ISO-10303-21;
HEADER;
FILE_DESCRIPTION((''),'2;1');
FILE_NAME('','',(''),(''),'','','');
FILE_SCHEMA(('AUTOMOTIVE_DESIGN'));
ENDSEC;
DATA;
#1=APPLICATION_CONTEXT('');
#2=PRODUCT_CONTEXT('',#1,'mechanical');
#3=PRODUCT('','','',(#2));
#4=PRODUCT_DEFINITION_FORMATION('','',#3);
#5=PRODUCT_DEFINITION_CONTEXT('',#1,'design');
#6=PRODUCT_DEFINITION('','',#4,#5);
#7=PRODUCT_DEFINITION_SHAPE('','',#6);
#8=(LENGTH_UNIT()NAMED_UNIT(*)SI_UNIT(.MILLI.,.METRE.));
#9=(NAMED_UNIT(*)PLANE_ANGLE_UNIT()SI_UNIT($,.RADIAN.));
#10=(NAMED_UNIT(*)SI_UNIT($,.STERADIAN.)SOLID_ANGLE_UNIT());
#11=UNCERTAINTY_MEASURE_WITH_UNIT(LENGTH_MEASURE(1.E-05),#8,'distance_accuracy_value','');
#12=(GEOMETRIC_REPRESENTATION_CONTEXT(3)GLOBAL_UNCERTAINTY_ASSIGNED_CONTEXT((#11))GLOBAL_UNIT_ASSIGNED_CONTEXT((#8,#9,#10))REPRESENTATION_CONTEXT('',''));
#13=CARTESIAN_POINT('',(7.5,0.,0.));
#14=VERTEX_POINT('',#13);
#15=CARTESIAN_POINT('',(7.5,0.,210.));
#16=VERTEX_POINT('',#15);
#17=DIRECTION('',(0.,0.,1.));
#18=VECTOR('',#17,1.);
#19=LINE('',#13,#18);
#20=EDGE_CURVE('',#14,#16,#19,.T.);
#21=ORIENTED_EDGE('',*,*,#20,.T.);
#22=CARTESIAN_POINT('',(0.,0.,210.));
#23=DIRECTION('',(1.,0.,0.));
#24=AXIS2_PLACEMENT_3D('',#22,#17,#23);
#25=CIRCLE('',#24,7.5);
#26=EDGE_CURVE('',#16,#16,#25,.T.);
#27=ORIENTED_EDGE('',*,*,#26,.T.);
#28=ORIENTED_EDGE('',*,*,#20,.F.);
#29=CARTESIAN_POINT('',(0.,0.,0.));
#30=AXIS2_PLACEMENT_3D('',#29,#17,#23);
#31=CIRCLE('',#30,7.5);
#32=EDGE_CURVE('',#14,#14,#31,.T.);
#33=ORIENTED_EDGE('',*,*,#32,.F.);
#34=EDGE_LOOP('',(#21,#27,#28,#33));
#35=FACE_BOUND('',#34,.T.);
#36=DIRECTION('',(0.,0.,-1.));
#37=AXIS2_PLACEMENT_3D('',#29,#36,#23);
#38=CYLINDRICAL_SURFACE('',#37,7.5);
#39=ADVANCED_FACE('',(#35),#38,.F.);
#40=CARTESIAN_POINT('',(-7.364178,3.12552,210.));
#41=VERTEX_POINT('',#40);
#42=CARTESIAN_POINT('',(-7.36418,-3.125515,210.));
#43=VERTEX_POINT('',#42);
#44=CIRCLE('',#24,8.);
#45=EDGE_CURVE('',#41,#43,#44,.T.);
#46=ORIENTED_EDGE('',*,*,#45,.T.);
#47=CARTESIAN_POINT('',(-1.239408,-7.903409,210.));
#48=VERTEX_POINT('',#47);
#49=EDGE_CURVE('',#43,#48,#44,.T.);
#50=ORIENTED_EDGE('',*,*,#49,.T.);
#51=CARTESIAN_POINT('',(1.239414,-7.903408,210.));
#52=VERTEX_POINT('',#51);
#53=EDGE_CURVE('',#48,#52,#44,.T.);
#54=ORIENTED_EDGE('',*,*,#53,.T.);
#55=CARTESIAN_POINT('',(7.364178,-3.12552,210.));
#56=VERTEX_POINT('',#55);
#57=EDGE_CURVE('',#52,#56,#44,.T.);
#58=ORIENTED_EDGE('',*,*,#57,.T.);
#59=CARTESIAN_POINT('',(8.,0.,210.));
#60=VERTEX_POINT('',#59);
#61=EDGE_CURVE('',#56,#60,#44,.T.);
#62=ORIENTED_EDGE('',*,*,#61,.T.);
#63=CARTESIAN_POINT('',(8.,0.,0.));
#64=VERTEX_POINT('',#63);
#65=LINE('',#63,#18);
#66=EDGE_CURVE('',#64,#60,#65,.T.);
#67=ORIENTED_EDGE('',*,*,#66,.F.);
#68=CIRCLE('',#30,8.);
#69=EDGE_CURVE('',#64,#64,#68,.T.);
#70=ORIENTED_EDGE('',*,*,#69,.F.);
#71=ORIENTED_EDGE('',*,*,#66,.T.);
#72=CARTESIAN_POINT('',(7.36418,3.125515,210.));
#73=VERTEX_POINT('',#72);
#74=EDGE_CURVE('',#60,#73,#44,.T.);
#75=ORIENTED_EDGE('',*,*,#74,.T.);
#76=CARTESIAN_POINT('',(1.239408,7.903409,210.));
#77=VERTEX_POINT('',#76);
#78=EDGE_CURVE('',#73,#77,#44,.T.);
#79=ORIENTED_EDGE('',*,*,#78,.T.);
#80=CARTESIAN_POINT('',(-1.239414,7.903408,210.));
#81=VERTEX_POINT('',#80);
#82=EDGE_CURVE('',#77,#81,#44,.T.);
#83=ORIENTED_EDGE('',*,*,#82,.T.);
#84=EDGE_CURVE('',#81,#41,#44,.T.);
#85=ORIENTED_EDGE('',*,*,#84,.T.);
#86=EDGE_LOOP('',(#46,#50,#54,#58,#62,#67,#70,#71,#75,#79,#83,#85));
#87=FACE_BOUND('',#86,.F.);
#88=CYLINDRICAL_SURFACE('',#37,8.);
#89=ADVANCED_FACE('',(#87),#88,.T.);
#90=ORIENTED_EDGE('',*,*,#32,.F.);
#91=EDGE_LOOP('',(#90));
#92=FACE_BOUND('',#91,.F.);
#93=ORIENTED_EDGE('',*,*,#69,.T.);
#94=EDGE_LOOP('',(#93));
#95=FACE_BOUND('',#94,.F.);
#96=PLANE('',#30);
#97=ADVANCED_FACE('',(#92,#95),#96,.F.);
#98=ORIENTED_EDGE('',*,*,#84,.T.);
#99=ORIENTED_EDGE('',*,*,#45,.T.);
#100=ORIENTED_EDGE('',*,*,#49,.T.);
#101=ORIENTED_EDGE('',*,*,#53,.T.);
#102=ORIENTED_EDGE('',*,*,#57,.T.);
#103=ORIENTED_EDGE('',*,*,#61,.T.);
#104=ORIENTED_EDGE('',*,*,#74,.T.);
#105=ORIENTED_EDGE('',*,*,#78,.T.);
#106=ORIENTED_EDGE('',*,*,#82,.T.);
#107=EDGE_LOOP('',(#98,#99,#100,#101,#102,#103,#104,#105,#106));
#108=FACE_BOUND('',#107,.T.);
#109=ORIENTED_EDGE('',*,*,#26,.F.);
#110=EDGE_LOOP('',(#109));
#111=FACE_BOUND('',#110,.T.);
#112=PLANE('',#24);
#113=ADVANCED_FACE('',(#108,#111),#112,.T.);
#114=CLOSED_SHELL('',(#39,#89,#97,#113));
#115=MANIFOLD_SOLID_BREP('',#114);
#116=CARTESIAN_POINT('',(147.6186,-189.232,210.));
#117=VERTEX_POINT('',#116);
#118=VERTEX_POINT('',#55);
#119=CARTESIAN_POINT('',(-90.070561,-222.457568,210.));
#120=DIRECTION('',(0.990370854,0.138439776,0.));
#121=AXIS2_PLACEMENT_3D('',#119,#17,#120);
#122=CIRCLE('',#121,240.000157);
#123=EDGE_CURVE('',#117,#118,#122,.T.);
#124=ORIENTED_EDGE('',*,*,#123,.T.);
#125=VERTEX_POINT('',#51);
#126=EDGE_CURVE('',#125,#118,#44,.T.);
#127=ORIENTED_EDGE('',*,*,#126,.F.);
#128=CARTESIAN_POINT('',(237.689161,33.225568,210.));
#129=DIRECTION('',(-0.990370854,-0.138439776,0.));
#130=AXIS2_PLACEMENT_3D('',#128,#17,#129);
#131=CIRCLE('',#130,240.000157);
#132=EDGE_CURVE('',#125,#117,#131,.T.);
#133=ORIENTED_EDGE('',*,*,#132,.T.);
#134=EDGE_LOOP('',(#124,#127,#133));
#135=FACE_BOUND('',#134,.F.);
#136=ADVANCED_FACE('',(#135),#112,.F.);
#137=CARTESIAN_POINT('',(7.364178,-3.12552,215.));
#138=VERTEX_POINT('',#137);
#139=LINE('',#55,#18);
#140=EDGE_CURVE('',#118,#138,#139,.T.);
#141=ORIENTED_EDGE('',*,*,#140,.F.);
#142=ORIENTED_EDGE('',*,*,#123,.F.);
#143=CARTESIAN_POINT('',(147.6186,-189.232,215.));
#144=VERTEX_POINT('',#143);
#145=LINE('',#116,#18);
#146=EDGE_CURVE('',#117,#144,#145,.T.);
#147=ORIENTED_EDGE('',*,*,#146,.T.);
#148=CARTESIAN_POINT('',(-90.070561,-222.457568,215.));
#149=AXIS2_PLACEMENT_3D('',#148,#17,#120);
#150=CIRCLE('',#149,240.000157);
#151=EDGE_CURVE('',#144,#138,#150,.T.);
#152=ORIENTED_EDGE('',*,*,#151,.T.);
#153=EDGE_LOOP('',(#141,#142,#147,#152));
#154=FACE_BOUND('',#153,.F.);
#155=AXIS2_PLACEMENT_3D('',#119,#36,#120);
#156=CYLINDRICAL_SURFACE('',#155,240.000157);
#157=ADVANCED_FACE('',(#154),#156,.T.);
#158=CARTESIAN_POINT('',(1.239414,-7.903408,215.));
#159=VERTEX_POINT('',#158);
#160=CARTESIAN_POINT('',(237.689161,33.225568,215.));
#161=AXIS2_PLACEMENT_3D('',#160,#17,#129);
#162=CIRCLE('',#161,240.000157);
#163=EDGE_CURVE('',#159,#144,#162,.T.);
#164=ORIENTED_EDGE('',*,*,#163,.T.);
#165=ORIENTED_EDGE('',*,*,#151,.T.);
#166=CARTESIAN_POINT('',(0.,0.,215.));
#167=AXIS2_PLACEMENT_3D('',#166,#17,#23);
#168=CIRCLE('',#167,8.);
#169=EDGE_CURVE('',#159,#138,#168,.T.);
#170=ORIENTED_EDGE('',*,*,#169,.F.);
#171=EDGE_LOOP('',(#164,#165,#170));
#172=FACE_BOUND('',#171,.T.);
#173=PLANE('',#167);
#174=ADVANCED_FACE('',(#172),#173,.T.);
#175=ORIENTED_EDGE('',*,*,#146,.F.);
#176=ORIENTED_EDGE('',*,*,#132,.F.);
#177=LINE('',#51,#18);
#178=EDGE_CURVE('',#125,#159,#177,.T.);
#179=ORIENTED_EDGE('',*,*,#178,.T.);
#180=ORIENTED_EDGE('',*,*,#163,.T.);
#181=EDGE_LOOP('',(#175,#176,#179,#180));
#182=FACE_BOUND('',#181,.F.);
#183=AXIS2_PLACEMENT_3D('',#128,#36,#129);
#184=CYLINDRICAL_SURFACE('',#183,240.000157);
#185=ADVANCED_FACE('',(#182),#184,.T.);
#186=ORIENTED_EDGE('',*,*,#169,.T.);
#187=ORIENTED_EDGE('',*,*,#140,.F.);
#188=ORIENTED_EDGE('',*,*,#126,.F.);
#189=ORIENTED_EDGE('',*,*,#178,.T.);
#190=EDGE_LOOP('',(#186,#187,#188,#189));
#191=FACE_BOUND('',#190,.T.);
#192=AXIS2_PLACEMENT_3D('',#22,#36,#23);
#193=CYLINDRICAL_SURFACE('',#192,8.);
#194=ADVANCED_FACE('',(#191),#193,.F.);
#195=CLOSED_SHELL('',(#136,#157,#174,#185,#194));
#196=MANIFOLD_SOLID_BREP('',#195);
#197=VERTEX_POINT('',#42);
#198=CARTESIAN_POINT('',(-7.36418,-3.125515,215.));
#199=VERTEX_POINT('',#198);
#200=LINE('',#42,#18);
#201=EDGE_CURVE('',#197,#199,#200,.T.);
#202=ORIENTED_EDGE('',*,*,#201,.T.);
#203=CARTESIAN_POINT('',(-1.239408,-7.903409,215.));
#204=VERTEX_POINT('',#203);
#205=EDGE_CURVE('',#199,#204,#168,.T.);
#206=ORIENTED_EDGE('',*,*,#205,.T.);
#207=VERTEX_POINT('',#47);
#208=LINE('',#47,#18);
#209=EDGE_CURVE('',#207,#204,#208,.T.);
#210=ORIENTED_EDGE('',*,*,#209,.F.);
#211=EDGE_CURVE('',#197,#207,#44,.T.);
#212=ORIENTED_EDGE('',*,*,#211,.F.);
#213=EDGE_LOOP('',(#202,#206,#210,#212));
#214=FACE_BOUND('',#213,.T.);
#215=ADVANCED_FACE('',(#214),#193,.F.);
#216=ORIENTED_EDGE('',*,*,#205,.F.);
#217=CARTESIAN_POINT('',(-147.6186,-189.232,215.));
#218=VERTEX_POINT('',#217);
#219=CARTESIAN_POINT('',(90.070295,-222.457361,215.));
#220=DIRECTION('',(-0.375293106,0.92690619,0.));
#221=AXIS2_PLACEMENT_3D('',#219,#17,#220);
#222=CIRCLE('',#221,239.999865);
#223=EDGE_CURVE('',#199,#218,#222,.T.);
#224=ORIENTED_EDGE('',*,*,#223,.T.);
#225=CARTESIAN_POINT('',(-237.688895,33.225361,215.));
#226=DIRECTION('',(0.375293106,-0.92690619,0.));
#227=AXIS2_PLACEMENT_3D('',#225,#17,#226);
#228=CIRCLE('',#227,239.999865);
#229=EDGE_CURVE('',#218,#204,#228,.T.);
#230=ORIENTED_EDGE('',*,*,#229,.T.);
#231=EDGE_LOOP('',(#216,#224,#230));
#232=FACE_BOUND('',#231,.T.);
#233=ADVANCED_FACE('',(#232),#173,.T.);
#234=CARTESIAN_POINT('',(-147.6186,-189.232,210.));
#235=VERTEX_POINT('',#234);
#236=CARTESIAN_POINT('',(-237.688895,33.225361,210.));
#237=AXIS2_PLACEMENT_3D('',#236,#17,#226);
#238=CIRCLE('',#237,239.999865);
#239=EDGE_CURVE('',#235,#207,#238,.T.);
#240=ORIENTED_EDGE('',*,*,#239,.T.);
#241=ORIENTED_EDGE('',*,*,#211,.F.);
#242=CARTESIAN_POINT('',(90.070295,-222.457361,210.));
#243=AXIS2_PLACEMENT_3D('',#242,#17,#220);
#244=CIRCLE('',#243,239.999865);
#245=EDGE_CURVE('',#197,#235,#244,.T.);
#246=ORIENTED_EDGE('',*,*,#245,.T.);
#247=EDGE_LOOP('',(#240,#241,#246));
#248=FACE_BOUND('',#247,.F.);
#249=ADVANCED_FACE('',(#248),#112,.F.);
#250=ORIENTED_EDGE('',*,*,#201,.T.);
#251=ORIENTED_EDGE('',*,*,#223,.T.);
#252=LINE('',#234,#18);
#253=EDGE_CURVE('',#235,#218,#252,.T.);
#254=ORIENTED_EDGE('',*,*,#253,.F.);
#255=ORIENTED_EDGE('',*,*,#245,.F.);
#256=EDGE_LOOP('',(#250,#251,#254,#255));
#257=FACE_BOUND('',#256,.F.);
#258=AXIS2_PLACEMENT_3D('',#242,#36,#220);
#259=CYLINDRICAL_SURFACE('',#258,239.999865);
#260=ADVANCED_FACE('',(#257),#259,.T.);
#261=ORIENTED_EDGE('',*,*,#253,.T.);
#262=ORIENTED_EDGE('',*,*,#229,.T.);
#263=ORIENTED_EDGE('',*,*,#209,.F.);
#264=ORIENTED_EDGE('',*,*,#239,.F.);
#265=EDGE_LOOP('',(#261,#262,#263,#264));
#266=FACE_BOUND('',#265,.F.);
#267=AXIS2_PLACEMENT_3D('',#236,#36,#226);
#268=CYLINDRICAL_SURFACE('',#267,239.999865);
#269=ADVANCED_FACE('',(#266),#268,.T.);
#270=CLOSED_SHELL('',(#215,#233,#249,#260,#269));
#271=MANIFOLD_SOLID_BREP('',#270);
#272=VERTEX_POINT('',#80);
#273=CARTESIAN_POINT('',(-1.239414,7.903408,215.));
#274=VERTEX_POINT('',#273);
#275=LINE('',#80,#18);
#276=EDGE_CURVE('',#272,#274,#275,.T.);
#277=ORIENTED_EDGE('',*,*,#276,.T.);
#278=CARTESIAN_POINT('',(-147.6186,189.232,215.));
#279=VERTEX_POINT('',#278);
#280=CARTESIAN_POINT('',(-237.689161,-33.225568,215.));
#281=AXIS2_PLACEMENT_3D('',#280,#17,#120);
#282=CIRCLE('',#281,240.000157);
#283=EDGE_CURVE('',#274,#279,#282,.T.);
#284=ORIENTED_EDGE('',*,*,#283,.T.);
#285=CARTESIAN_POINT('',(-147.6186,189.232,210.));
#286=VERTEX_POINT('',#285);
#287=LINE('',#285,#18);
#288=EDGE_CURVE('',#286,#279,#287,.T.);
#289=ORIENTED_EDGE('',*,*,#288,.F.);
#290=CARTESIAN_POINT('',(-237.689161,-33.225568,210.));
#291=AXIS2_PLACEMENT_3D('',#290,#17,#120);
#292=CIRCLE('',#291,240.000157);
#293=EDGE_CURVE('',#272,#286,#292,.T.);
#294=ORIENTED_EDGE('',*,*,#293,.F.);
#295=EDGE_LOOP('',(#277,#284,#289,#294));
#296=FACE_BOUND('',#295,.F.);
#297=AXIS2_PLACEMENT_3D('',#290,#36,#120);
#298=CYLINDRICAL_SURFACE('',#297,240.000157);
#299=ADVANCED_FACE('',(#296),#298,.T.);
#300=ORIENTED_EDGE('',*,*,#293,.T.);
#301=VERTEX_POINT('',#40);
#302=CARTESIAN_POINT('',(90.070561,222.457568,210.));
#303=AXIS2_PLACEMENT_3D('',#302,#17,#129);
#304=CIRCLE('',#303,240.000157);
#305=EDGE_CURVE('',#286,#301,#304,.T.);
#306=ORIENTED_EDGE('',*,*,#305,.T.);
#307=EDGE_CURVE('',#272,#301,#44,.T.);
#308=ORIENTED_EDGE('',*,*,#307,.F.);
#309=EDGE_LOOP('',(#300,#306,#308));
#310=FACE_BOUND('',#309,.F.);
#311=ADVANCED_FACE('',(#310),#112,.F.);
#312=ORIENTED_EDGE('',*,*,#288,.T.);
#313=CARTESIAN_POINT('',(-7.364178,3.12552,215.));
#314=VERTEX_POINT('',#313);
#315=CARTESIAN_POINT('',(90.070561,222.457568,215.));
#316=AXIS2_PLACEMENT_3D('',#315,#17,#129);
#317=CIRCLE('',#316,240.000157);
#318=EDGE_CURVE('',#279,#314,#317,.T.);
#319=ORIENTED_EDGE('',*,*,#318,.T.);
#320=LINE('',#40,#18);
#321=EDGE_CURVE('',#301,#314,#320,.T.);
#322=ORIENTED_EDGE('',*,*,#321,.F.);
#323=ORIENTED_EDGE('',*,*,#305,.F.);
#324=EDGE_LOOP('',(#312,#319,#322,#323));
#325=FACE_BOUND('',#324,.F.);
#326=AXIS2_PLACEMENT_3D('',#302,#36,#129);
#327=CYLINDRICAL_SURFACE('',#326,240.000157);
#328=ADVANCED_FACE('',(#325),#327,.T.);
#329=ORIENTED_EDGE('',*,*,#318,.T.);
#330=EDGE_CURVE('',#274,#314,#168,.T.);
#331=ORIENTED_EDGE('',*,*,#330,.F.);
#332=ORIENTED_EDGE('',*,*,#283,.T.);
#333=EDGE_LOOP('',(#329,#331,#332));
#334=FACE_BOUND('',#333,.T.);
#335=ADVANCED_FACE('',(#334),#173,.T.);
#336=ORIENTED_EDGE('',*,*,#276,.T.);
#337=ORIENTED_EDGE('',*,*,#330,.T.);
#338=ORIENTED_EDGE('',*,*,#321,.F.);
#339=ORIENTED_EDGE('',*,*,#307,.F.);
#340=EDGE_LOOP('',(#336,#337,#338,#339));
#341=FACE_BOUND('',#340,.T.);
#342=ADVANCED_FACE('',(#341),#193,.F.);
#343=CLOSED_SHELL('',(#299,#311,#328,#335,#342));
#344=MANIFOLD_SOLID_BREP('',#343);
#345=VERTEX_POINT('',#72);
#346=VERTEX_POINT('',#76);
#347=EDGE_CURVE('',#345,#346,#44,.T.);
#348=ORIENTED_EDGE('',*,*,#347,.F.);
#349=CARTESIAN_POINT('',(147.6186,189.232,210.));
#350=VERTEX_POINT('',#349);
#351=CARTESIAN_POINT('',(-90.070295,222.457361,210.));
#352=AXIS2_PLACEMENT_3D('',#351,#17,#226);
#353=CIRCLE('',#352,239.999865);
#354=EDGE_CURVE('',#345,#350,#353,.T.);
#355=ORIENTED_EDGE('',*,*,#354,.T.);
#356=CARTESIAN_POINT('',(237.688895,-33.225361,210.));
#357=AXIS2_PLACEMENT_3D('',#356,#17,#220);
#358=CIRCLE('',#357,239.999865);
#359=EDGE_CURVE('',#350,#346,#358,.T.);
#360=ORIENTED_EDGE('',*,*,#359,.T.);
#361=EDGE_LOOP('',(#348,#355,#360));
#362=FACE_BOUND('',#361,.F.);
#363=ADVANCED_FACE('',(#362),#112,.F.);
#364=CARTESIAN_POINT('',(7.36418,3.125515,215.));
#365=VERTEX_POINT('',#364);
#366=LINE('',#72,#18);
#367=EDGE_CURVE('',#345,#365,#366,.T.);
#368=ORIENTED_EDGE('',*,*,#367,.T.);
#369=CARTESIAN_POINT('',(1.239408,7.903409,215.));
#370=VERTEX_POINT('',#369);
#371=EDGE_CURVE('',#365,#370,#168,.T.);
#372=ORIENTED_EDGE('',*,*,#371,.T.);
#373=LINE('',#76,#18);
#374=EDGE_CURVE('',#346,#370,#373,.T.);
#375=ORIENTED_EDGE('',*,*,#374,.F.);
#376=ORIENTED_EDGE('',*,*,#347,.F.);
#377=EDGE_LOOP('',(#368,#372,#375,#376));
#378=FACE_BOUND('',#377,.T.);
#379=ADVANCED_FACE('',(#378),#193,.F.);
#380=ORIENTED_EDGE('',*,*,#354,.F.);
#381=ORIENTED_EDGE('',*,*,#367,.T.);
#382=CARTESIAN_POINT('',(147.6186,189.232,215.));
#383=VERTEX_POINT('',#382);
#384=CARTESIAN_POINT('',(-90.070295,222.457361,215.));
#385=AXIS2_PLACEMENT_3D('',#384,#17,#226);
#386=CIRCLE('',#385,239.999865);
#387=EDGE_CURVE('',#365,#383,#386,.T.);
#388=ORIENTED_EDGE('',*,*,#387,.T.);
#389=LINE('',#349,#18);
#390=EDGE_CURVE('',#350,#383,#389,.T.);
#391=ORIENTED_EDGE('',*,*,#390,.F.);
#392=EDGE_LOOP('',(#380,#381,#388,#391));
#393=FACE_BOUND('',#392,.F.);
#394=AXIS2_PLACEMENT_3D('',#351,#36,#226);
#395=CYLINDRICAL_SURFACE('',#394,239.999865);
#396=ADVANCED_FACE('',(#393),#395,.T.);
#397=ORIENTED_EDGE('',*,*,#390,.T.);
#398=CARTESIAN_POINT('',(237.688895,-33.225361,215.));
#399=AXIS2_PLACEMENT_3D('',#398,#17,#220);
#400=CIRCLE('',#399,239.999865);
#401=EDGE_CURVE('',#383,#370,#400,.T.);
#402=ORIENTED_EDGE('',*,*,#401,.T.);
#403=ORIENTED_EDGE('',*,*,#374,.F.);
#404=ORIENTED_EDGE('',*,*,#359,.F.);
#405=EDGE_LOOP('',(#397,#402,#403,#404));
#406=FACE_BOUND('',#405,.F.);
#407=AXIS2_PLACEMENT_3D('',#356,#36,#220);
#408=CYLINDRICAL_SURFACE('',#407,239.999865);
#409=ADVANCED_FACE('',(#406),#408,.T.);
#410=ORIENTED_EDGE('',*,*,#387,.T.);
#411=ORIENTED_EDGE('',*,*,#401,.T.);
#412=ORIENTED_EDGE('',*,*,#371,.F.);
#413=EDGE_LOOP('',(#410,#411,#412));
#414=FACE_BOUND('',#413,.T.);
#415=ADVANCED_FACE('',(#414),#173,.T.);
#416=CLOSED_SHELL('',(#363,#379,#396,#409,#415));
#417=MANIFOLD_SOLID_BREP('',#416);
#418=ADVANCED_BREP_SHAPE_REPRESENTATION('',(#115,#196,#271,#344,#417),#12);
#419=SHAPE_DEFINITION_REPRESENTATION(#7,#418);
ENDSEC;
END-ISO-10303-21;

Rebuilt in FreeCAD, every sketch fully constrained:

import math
import FreeCAD as App
import Part
import Sketcher

V = App.Vector

doc = App.newDocument("Part")
params = doc.addObject("Spreadsheet::Sheet", "Params")
for row, (alias, value) in enumerate([
    ("sketch1_diameter", "16 mm"),
    ("sketch1_diameter2", "15 mm"),
    ("pad1_length", "210 mm"),
    ("sketch2_radius", "240 mm"),
    ("sketch2_radius2", "8 mm"),
    ("pad2_length", "5 mm"),
], start=1):
    params.set(f"A{row}", alias)
    params.set(f"B{row}", "=" + value)
    params.setAlias(f"B{row}", alias)

body = doc.addObject("PartDesign::Body", "Body")
body.AllowCompound = True

sketch1 = doc.addObject("Sketcher::SketchObject", "Sketch")
body.addObject(sketch1)
sketch1.AttachmentSupport = (doc.XY_Plane, [""])
sketch1.MapMode = "FlatFace"
sketch1.addGeometry(Part.Circle(V(0, 0, 0), V(0, 0, 1), 8), False)
sketch1.addGeometry(Part.Circle(V(0, 0, 0), V(0, 0, 1), 8), False)
sketch1.addConstraint(Sketcher.Constraint("Coincident", 0, 3, -1, 1))
sketch1.addConstraint(Sketcher.Constraint("Coincident", 1, 3, -1, 1))
sketch1.addConstraint(Sketcher.Constraint("Diameter", 0, 16.0))
sketch1.addConstraint(Sketcher.Constraint("Diameter", 1, 15.0))
sketch1.setExpression("Constraints[2]", "Params.sketch1_diameter")
sketch1.setExpression("Constraints[3]", "Params.sketch1_diameter2")
pad1 = doc.addObject("PartDesign::Pad", "Pad")
body.addObject(pad1)
pad1.Profile = sketch1
pad1.setExpression("Length", "Params.pad1_length")

sketch2 = doc.addObject("Sketcher::SketchObject", "Sketch001")
body.addObject(sketch2)
sketch2.AttachmentSupport = (doc.XY_Plane, [""])
sketch2.MapMode = "FlatFace"
sketch2.AttachmentOffset = App.Placement(V(0, 0, 210), App.Rotation())
sketch2.addGeometry(Part.ArcOfCircle(Part.Circle(V(0, 0, 0), V(0, 0, 1), 8), math.radians(23), math.radians(81)), False)
sketch2.addGeometry(Part.ArcOfCircle(Part.Circle(V(-90, 222, 0), V(0, 0, 1), 240), math.radians(-66), math.radians(-8)), False)
sketch2.addGeometry(Part.ArcOfCircle(Part.Circle(V(238, -33, 0), V(0, 0, 1), 240), math.radians(112), math.radians(170)), False)
sketch2.addGeometry(Part.ArcOfCircle(Part.Circle(V(-90, -222, 0), V(0, 0, 1), 240), math.radians(8), math.radians(66)), False)
sketch2.addGeometry(Part.ArcOfCircle(Part.Circle(V(0, 0, 0), V(0, 0, 1), 8), math.radians(-81), math.radians(-23)), False)
sketch2.addGeometry(Part.ArcOfCircle(Part.Circle(V(238, 33, 0), V(0, 0, 1), 240), math.radians(-170), math.radians(-112)), False)
sketch2.addGeometry(Part.ArcOfCircle(Part.Circle(V(0, 0, 0), V(0, 0, 1), 8), math.radians(99), math.radians(157)), False)
sketch2.addGeometry(Part.ArcOfCircle(Part.Circle(V(-238, -33, 0), V(0, 0, 1), 240), math.radians(10), math.radians(68)), False)
sketch2.addGeometry(Part.ArcOfCircle(Part.Circle(V(90, 222, 0), V(0, 0, 1), 240), math.radians(-172), math.radians(-114)), False)
sketch2.addGeometry(Part.ArcOfCircle(Part.Circle(V(-238, 33, 0), V(0, 0, 1), 240), math.radians(-68), math.radians(-10)), False)
sketch2.addGeometry(Part.ArcOfCircle(Part.Circle(V(0, 0, 0), V(0, 0, 1), 8), math.radians(-157), math.radians(-99)), False)
sketch2.addGeometry(Part.ArcOfCircle(Part.Circle(V(90, -222, 0), V(0, 0, 1), 240), math.radians(114), math.radians(172)), False)
sketch2.addConstraint(Sketcher.Constraint("Coincident", 0, 1, 1, 1))
sketch2.addConstraint(Sketcher.Constraint("Coincident", 1, 2, 2, 1))
sketch2.addConstraint(Sketcher.Constraint("Coincident", 2, 2, 0, 2))
sketch2.addConstraint(Sketcher.Constraint("Coincident", 3, 2, 4, 2))
sketch2.addConstraint(Sketcher.Constraint("Coincident", 4, 1, 5, 1))
sketch2.addConstraint(Sketcher.Constraint("Coincident", 5, 2, 3, 1))
sketch2.addConstraint(Sketcher.Constraint("Coincident", 6, 1, 7, 1))
sketch2.addConstraint(Sketcher.Constraint("Coincident", 7, 2, 8, 1))
sketch2.addConstraint(Sketcher.Constraint("Coincident", 8, 2, 6, 2))
sketch2.addConstraint(Sketcher.Constraint("Coincident", 9, 2, 10, 2))
sketch2.addConstraint(Sketcher.Constraint("Coincident", 10, 1, 11, 1))
sketch2.addConstraint(Sketcher.Constraint("Coincident", 11, 2, 9, 1))
sketch2.addConstraint(Sketcher.Constraint("Coincident", 0, 3, -1, 1))
sketch2.addConstraint(Sketcher.Constraint("Coincident", 4, 3, -1, 1))
sketch2.addConstraint(Sketcher.Constraint("Coincident", 6, 3, -1, 1))
sketch2.addConstraint(Sketcher.Constraint("Coincident", 10, 3, -1, 1))
sketch2.addConstraint(Sketcher.Constraint("Equal", 1, 2))
sketch2.addConstraint(Sketcher.Constraint("Equal", 2, 3))
sketch2.addConstraint(Sketcher.Constraint("Equal", 0, 4))
sketch2.addConstraint(Sketcher.Constraint("Equal", 3, 5))
sketch2.addConstraint(Sketcher.Constraint("Equal", 4, 6))
sketch2.addConstraint(Sketcher.Constraint("Equal", 5, 7))
sketch2.addConstraint(Sketcher.Constraint("Equal", 7, 8))
sketch2.addConstraint(Sketcher.Constraint("Equal", 8, 9))
sketch2.addConstraint(Sketcher.Constraint("Equal", 6, 10))
sketch2.addConstraint(Sketcher.Constraint("Equal", 9, 11))
sketch2.addConstraint(Sketcher.Constraint("Symmetric", 5, 3, 7, 3, -1, 1))
sketch2.addConstraint(Sketcher.Constraint("Symmetric", 3, 3, 8, 3, -1, 1))
sketch2.addConstraint(Sketcher.Constraint("Symmetric", 2, 3, 9, 3, -1, 1))
sketch2.addConstraint(Sketcher.Constraint("Symmetric", 1, 3, 11, 3, -1, 1))
sketch2.addConstraint(Sketcher.Constraint("Symmetric", 2, 3, 7, 3, -2))
sketch2.addConstraint(Sketcher.Constraint("Symmetric", 1, 3, 8, 3, -2))
sketch2.addConstraint(Sketcher.Constraint("Radius", 1, 240.0))
sketch2.addConstraint(Sketcher.Constraint("Radius", 0, 8.0))
sketch2.addConstraint(Sketcher.Constraint("DistanceY", 0, 1, 5, 3, 30.1))
sketch2.addConstraint(Sketcher.Constraint("DistanceX", -1, 1, 2, 3, 237.689))
sketch2.addConstraint(Sketcher.Constraint("DistanceY", -1, 1, 1, 2, 189.232))
sketch2.addConstraint(Sketcher.Constraint("DistanceY", 2, 3, 1, 3, 255.683))
sketch2.setExpression("Constraints[32]", "Params.sketch2_radius")
sketch2.setExpression("Constraints[33]", "Params.sketch2_radius2")
pad2 = doc.addObject("PartDesign::Pad", "Pad001")
body.addObject(pad2)
pad2.Profile = sketch2
pad2.setExpression("Length", "Params.pad2_length")

doc.recompute()
